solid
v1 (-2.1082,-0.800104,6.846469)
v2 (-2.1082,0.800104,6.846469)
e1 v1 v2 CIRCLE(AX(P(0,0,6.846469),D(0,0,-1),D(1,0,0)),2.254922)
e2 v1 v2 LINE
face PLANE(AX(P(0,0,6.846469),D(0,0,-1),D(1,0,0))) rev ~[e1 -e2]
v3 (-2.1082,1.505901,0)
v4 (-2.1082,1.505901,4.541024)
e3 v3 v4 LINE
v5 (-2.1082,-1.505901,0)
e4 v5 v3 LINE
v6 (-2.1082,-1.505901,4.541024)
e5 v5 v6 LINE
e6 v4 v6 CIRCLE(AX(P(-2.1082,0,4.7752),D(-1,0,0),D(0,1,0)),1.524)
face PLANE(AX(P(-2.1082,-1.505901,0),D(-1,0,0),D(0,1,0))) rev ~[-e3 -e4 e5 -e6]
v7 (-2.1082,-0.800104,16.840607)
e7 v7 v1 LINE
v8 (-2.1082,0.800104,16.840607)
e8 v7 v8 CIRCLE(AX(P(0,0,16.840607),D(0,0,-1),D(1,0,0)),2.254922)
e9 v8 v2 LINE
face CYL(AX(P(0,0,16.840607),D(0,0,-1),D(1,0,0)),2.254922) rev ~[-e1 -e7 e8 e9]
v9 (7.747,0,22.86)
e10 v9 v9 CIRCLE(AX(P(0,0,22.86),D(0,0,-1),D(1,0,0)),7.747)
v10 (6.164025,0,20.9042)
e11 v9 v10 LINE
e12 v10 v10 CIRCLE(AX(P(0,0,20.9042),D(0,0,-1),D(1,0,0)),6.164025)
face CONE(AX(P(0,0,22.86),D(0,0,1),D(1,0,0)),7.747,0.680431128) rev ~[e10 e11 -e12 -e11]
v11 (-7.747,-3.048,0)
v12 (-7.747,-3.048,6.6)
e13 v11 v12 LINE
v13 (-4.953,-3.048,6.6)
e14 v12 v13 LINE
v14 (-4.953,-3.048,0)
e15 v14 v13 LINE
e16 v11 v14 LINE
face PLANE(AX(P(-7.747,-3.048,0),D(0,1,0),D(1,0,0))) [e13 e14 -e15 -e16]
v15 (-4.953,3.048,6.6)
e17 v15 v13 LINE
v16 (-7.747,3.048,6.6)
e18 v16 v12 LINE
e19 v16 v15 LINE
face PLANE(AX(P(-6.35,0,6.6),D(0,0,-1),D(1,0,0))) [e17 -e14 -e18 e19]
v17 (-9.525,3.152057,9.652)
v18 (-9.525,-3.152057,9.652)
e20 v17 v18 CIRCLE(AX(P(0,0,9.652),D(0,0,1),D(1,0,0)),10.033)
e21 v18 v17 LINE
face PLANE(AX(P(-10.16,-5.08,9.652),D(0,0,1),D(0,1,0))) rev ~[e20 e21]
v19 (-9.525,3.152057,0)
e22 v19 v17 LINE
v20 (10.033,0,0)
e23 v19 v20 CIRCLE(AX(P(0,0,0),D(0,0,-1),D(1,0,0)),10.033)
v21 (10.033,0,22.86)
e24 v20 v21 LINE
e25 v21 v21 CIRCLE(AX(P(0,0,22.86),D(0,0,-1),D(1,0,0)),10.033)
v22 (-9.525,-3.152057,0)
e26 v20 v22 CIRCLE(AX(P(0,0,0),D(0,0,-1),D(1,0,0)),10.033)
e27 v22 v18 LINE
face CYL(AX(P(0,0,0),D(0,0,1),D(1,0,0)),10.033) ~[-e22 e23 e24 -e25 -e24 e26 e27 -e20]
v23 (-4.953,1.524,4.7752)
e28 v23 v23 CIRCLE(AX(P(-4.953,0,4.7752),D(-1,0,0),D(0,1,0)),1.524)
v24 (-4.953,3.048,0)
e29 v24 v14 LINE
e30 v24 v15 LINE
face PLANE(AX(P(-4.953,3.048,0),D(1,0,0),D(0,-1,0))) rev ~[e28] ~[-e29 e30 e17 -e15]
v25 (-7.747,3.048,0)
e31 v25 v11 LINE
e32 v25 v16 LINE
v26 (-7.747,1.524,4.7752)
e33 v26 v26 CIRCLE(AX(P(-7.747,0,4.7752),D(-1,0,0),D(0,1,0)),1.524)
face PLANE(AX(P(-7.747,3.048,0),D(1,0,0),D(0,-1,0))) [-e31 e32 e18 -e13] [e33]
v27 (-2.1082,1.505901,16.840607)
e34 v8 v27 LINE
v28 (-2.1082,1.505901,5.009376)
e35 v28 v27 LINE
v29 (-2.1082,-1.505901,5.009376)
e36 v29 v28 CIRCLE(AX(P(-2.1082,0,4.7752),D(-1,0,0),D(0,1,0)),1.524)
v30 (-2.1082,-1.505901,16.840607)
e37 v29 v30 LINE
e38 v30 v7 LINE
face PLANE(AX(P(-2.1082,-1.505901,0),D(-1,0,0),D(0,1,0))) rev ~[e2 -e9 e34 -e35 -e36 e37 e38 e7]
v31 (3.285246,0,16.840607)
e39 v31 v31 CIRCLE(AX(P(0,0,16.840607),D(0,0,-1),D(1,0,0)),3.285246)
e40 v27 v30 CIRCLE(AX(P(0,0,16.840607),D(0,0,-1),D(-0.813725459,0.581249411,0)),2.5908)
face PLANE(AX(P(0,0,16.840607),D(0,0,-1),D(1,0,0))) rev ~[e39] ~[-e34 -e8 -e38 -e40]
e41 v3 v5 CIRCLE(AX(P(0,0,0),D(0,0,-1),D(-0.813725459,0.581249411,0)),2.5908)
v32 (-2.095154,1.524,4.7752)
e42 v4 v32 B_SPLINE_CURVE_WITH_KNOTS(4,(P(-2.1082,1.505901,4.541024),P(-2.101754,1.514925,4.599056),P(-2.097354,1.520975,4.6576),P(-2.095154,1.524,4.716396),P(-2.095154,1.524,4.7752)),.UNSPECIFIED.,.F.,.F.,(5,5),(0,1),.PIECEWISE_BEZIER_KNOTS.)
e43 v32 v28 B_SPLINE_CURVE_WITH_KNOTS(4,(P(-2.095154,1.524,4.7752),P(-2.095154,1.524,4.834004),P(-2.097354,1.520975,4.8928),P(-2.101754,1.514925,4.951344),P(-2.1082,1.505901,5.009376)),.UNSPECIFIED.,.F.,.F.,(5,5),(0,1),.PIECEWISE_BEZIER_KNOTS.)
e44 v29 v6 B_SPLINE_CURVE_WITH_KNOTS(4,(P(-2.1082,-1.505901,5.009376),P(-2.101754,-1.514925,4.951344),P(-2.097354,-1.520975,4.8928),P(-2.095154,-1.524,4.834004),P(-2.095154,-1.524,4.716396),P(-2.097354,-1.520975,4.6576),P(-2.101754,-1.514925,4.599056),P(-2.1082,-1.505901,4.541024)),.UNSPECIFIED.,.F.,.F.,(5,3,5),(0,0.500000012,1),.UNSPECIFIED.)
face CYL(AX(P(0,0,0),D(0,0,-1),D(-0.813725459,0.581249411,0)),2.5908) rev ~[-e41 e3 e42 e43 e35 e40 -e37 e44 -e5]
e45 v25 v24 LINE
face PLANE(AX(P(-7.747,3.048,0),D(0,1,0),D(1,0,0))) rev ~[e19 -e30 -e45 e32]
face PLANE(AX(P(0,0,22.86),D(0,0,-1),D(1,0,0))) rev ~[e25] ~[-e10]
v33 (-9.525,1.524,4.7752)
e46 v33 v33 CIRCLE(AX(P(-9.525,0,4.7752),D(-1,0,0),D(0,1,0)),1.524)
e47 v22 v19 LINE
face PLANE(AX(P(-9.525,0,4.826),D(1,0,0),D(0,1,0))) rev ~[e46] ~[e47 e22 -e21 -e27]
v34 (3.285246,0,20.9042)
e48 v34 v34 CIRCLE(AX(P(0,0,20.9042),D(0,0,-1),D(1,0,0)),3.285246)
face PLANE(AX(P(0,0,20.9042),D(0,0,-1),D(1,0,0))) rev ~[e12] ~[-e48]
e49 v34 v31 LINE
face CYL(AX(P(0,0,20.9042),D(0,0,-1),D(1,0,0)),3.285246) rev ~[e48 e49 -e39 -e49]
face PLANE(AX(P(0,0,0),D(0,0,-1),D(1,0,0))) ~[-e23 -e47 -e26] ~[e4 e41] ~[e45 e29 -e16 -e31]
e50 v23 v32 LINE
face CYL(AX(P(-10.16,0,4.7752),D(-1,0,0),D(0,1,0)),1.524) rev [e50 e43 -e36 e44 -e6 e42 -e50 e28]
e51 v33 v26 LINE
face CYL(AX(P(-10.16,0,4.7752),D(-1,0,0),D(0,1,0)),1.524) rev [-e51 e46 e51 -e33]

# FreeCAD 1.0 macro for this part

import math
import FreeCAD as App
import Part
import Sketcher
Q = App.Units.Quantity

doc = App.newDocument("Part")
body = doc.addObject("PartDesign::Body", "Body")

sketch1 = doc.addObject("Sketcher::SketchObject", "Sketch")
body.addObject(sketch1)
sketch1.AttachmentSupport = (doc.XZ_Plane, [""])
sketch1.MapMode = "FlatFace"
sketch1.addGeometry(Part.LineSegment(App.Vector(0, 6.8, 0), App.Vector(0, 0, 0)), False)
sketch1.addGeometry(Part.LineSegment(App.Vector(0, 0, 0), App.Vector(10, 0, 0)), False)
sketch1.addGeometry(Part.LineSegment(App.Vector(10, 0, 0), App.Vector(10, 22.9, 0)), False)
sketch1.addGeometry(Part.LineSegment(App.Vector(10, 22.9, 0), App.Vector(7.7, 22.9, 0)), False)
sketch1.addGeometry(Part.LineSegment(App.Vector(7.7, 22.9, 0), App.Vector(6.2, 20.9, 0)), False)
sketch1.addGeometry(Part.LineSegment(App.Vector(6.2, 20.9, 0), App.Vector(3.3, 20.9, 0)), False)
sketch1.addGeometry(Part.LineSegment(App.Vector(3.3, 20.9, 0), App.Vector(3.3, 16.8, 0)), False)
sketch1.addGeometry(Part.LineSegment(App.Vector(3.3, 16.8, 0), App.Vector(2.3, 16.8, 0)), False)
sketch1.addGeometry(Part.LineSegment(App.Vector(2.3, 16.8, 0), App.Vector(2.3, 6.8, 0)), False)
sketch1.addGeometry(Part.LineSegment(App.Vector(2.3, 6.8, 0), App.Vector(0, 6.8, 0)), False)
sketch1.addConstraint(Sketcher.Constraint("Coincident", 0, 2, 1, 1))
sketch1.addConstraint(Sketcher.Constraint("Coincident", 1, 2, 2, 1))
sketch1.addConstraint(Sketcher.Constraint("Coincident", 2, 2, 3, 1))
sketch1.addConstraint(Sketcher.Constraint("Coincident", 3, 2, 4, 1))
sketch1.addConstraint(Sketcher.Constraint("Coincident", 4, 2, 5, 1))
sketch1.addConstraint(Sketcher.Constraint("Coincident", 5, 2, 6, 1))
sketch1.addConstraint(Sketcher.Constraint("Coincident", 6, 2, 7, 1))
sketch1.addConstraint(Sketcher.Constraint("Coincident", 7, 2, 8, 1))
sketch1.addConstraint(Sketcher.Constraint("Coincident", 8, 2, 9, 1))
sketch1.addConstraint(Sketcher.Constraint("Coincident", 9, 2, 0, 1))
sketch1.addConstraint(Sketcher.Constraint("Vertical", 0))
sketch1.addConstraint(Sketcher.Constraint("Horizontal", 1))
sketch1.addConstraint(Sketcher.Constraint("Vertical", 2))
sketch1.addConstraint(Sketcher.Constraint("Horizontal", 3))
sketch1.addConstraint(Sketcher.Constraint("Horizontal", 5))
sketch1.addConstraint(Sketcher.Constraint("Vertical", 6))
sketch1.addConstraint(Sketcher.Constraint("Horizontal", 7))
sketch1.addConstraint(Sketcher.Constraint("Vertical", 8))
sketch1.addConstraint(Sketcher.Constraint("Horizontal", 9))
sketch1.addConstraint(Sketcher.Constraint("Coincident", 0, 2, -1, 1))
sketch1.addConstraint(Sketcher.Constraint("DistanceY", 2, 1, 2, 2, Q("0.9 in")))
sketch1.addConstraint(Sketcher.Constraint("DistanceX", 3, 2, 3, 1, Q("0.09 in")))
sketch1.addConstraint(Sketcher.Constraint("DistanceX", 1, 1, 1, 2, Q("0.395 in")))
sketch1.addConstraint(Sketcher.Constraint("DistanceY", -1, 1, 4, 2, Q("0.823 in")))
sketch1.addConstraint(Sketcher.Constraint("DistanceX", 5, 2, 5, 1, Q("2.878779 mm")))
sketch1.addConstraint(Sketcher.Constraint("DistanceY", 0, 2, 0, 1, Q("6.846469 mm")))
sketch1.addConstraint(Sketcher.Constraint("Distance", 4, Q("2.516141 mm")))
sketch1.addConstraint(Sketcher.Constraint("DistanceX", 7, 2, 7, 1, Q("1.030324 mm")))
sketch1.addConstraint(Sketcher.Constraint("DistanceY", 6, 2, 6, 1, Q("4.063593 mm")))
revolution = doc.addObject("PartDesign::Revolution", "Revolution")
body.addObject(revolution)
revolution.Profile = sketch1
revolution.ReferenceAxis = (sketch1, ["V_Axis"])
revolution.Angle = 360

sketch2 = doc.addObject("Sketcher::SketchObject", "Sketch001")
body.addObject(sketch2)
sketch2.AttachmentSupport = (doc.XY_Plane, [""])
sketch2.MapMode = "FlatFace"
sketch2.addGeometry(Part.ArcOfCircle(Part.Circle(App.Vector(0, 0, 0), App.Vector(0, 0, 1), 2.6), math.radians(-144), math.radians(144)), False)
sketch2.addGeometry(Part.LineSegment(App.Vector(-2.1, -1.5, 0), App.Vector(-2.1, 1.5, 0)), False)
sketch2.addConstraint(Sketcher.Constraint("Coincident", 0, 1, 1, 1))
sketch2.addConstraint(Sketcher.Constraint("Coincident", 1, 2, 0, 2))
sketch2.addConstraint(Sketcher.Constraint("Vertical", 1))
sketch2.addConstraint(Sketcher.Constraint("Coincident", 0, 3, -1, 1))
sketch2.addConstraint(Sketcher.Constraint("Radius", 0, Q("0.102 in")))
sketch2.addConstraint(Sketcher.Constraint("DistanceX", 0, 1, -1, 1, Q("0.083 in")))
pocket1 = doc.addObject("PartDesign::Pocket", "Pocket")
body.addObject(pocket1)
pocket1.Profile = sketch2
pocket1.Type = "ThroughAll"
pocket1.Reversed = True

sketch3 = doc.addObject("Sketcher::SketchObject", "Sketch002")
body.addObject(sketch3)
sketch3.AttachmentSupport = (doc.YZ_Plane, [""])
sketch3.MapMode = "FlatFace"
sketch3.AttachmentOffset = App.Placement(App.Vector(0, 0, -0.4 * 25.4), App.Rotation())
sketch3.addGeometry(Part.LineSegment(App.Vector(-5, 10, 0), App.Vector(-5, 0, 0)), False)
sketch3.addGeometry(Part.LineSegment(App.Vector(-5, 0, 0), App.Vector(5, 0, 0)), False)
sketch3.addGeometry(Part.LineSegment(App.Vector(5, 0, 0), App.Vector(5, 10, 0)), False)
sketch3.addGeometry(Part.LineSegment(App.Vector(5, 10, 0), App.Vector(-5, 10, 0)), False)
sketch3.addConstraint(Sketcher.Constraint("Coincident", 0, 2, 1, 1))
sketch3.addConstraint(Sketcher.Constraint("Coincident", 1, 2, 2, 1))
sketch3.addConstraint(Sketcher.Constraint("Coincident", 2, 2, 3, 1))
sketch3.addConstraint(Sketcher.Constraint("Coincident", 3, 2, 0, 1))
sketch3.addConstraint(Sketcher.Constraint("Vertical", 0))
sketch3.addConstraint(Sketcher.Constraint("Horizontal", 1))
sketch3.addConstraint(Sketcher.Constraint("Vertical", 2))
sketch3.addConstraint(Sketcher.Constraint("Horizontal", 3))
sketch3.addConstraint(Sketcher.Constraint("Symmetric", 0, 2, 1, 2, -1, 1))
sketch3.addConstraint(Sketcher.Constraint("DistanceX", 1, 1, 1, 2, Q("0.4 in")))
sketch3.addConstraint(Sketcher.Constraint("DistanceY", 0, 2, 0, 1, Q("0.38 in")))
pocket2 = doc.addObject("PartDesign::Pocket", "Pocket001")
body.addObject(pocket2)
pocket2.Profile = sketch3
pocket2.Length = Q("0.025 in")
pocket2.Reversed = True

sketch4 = doc.addObject("Sketcher::SketchObject", "Sketch003")
body.addObject(sketch4)
sketch4.AttachmentSupport = (doc.YZ_Plane, [""])
sketch4.MapMode = "FlatFace"
sketch4.AttachmentOffset = App.Placement(App.Vector(0, 0, -0.4 * 25.4), App.Rotation())
sketch4.addGeometry(Part.Circle(App.Vector(0, 4.8, 0), App.Vector(0, 0, 1), 1.5), False)
sketch4.addConstraint(Sketcher.Constraint("PointOnObject", 0, 3, -2))
sketch4.addConstraint(Sketcher.Constraint("Diameter", 0, Q("0.12 in")))
sketch4.addConstraint(Sketcher.Constraint("DistanceY", -1, 1, 0, 3, Q("0.188 in")))
pocket3 = doc.addObject("PartDesign::Pocket", "Pocket002")
body.addObject(pocket3)
pocket3.Profile = sketch4
pocket3.Length = Q("0.4 in")
pocket3.Reversed = True

sketch5 = doc.addObject("Sketcher::SketchObject", "Sketch004")
body.addObject(sketch5)
sketch5.AttachmentSupport = (doc.XY_Plane, [""])
sketch5.MapMode = "FlatFace"
sketch5.addGeometry(Part.LineSegment(App.Vector(-7.7, -3, 0), App.Vector(-7.7, 3, 0)), False)
sketch5.addGeometry(Part.LineSegment(App.Vector(-7.7, 3, 0), App.Vector(-5, 3, 0)), False)
sketch5.addGeometry(Part.LineSegment(App.Vector(-5, 3, 0), App.Vector(-5, -3, 0)), False)
sketch5.addGeometry(Part.LineSegment(App.Vector(-5, -3, 0), App.Vector(-7.7, -3, 0)), False)
sketch5.addConstraint(Sketcher.Constraint("Coincident", 0, 2, 1, 1))
sketch5.addConstraint(Sketcher.Constraint("Coincident", 1, 2, 2, 1))
sketch5.addConstraint(Sketcher.Constraint("Coincident", 2, 2, 3, 1))
sketch5.addConstraint(Sketcher.Constraint("Coincident", 3, 2, 0, 1))
sketch5.addConstraint(Sketcher.Constraint("Vertical", 0))
sketch5.addConstraint(Sketcher.Constraint("Horizontal", 1))
sketch5.addConstraint(Sketcher.Constraint("Vertical", 2))
sketch5.addConstraint(Sketcher.Constraint("Horizontal", 3))
sketch5.addConstraint(Sketcher.Constraint("DistanceX", 1, 1, 1, 2, Q("0.11 in")))
sketch5.addConstraint(Sketcher.Constraint("DistanceY", 0, 1, 0, 2, Q("0.24 in")))
sketch5.addConstraint(Sketcher.Constraint("DistanceY", -1, 1, 0, 2, Q("0.12 in")))
sketch5.addConstraint(Sketcher.Constraint("DistanceX", 0, 2, -1, 1, Q("0.305 in")))
pocket4 = doc.addObject("PartDesign::Pocket", "Pocket003")
body.addObject(pocket4)
pocket4.Profile = sketch5
pocket4.Length = 6.6
pocket4.Reversed = True

doc.recompute()
